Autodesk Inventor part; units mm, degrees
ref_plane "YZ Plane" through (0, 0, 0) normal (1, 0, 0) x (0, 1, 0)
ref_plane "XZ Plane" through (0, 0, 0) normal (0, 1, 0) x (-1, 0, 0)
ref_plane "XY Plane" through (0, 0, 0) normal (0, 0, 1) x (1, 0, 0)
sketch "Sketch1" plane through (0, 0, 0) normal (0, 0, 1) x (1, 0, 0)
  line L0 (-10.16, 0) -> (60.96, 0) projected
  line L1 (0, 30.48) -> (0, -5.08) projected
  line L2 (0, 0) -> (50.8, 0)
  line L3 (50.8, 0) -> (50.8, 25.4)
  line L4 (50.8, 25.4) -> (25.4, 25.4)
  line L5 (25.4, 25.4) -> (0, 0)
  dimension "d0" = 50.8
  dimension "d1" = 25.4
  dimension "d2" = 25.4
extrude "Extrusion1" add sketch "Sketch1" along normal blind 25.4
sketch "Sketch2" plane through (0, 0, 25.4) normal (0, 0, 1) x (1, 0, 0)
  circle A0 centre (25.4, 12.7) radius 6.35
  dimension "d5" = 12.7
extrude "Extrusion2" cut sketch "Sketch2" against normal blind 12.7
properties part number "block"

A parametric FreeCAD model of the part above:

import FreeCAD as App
import Part
import Sketcher
Q = App.Units.Quantity

doc = App.newDocument("Part")
params = doc.addObject("Spreadsheet::Sheet", "Params")
for row, (alias, value) in enumerate([
    ("sketch1_width", "2 in"),
    ("sketch1_width2", "1 in"),
    ("pad1_length", "1 in"),
    ("sketch2_diameter", "0.5 in"),
    ("pocket1_length", "0.5 in"),
], start=1):
    params.set(f"A{row}", alias)
    params.set(f"B{row}", "=" + value)
    params.setAlias(f"B{row}", alias)

body = doc.addObject("PartDesign::Body", "Body")

sketch1 = doc.addObject("Sketcher::SketchObject", "Sketch")
body.addObject(sketch1)
sketch1.AttachmentSupport = (doc.XY_Plane, [""])
sketch1.MapMode = "FlatFace"
sketch1.addGeometry([
    Part.LineSegment(App.Vector(25, 25, 0), App.Vector(0, 0, 0)),
    Part.LineSegment(App.Vector(0, 0, 0), App.Vector(51, 0, 0)),
    Part.LineSegment(App.Vector(51, 0, 0), App.Vector(51, 25, 0)),
    Part.LineSegment(App.Vector(51, 25, 0), App.Vector(25, 25, 0)),
], False)
sketch1.addConstraint([
    Sketcher.Constraint("Coincident", 0, 2, 1, 1),
    Sketcher.Constraint("Coincident", 1, 2, 2, 1),
    Sketcher.Constraint("Coincident", 2, 2, 3, 1),
    Sketcher.Constraint("Coincident", 3, 2, 0, 1),
    Sketcher.Constraint("Horizontal", 1),
    Sketcher.Constraint("Vertical", 2),
    Sketcher.Constraint("Horizontal", 3),
    Sketcher.Constraint("Coincident", 0, 2, -1, 1),
    Sketcher.Constraint("Equal", 3, 2),
    Sketcher.Constraint("DistanceX", 1, 1, 1, 2, Q("2 in")),
    Sketcher.Constraint("DistanceX", 3, 2, 3, 1, Q("1 in")),
])
sketch1.setExpression("Constraints[9]", "Params.sketch1_width")
sketch1.setExpression("Constraints[10]", "Params.sketch1_width2")
pad1 = doc.addObject("PartDesign::Pad", "Pad")
body.addObject(pad1)
pad1.Profile = sketch1
pad1.setExpression("Length", "Params.pad1_length")

sketch2 = doc.addObject("Sketcher::SketchObject", "Sketch001")
body.addObject(sketch2)
sketch2.AttachmentSupport = (doc.XY_Plane, [""])
sketch2.MapMode = "FlatFace"
sketch2.AttachmentOffset = App.Placement(App.Vector(0, 0, 1 * 25.4), App.Rotation())
sketch2.addGeometry(Part.Circle(App.Vector(25, 13, 0), App.Vector(0, 0, 1), 6), False)
sketch2.addConstraint([
    Sketcher.Constraint("Diameter", 0, Q("0.5 in")),
    Sketcher.Constraint("DistanceY", -1, 1, 0, 3, Q("0.5 in")),
    Sketcher.Constraint("DistanceX", -1, 1, 0, 3, Q("1 in")),
])
sketch2.setExpression("Constraints[0]", "Params.sketch2_diameter")
pocket1 = doc.addObject("PartDesign::Pocket", "Pocket")
body.addObject(pocket1)
pocket1.Profile = sketch2
pocket1.setExpression("Length", "Params.pocket1_length")

doc.recompute()
